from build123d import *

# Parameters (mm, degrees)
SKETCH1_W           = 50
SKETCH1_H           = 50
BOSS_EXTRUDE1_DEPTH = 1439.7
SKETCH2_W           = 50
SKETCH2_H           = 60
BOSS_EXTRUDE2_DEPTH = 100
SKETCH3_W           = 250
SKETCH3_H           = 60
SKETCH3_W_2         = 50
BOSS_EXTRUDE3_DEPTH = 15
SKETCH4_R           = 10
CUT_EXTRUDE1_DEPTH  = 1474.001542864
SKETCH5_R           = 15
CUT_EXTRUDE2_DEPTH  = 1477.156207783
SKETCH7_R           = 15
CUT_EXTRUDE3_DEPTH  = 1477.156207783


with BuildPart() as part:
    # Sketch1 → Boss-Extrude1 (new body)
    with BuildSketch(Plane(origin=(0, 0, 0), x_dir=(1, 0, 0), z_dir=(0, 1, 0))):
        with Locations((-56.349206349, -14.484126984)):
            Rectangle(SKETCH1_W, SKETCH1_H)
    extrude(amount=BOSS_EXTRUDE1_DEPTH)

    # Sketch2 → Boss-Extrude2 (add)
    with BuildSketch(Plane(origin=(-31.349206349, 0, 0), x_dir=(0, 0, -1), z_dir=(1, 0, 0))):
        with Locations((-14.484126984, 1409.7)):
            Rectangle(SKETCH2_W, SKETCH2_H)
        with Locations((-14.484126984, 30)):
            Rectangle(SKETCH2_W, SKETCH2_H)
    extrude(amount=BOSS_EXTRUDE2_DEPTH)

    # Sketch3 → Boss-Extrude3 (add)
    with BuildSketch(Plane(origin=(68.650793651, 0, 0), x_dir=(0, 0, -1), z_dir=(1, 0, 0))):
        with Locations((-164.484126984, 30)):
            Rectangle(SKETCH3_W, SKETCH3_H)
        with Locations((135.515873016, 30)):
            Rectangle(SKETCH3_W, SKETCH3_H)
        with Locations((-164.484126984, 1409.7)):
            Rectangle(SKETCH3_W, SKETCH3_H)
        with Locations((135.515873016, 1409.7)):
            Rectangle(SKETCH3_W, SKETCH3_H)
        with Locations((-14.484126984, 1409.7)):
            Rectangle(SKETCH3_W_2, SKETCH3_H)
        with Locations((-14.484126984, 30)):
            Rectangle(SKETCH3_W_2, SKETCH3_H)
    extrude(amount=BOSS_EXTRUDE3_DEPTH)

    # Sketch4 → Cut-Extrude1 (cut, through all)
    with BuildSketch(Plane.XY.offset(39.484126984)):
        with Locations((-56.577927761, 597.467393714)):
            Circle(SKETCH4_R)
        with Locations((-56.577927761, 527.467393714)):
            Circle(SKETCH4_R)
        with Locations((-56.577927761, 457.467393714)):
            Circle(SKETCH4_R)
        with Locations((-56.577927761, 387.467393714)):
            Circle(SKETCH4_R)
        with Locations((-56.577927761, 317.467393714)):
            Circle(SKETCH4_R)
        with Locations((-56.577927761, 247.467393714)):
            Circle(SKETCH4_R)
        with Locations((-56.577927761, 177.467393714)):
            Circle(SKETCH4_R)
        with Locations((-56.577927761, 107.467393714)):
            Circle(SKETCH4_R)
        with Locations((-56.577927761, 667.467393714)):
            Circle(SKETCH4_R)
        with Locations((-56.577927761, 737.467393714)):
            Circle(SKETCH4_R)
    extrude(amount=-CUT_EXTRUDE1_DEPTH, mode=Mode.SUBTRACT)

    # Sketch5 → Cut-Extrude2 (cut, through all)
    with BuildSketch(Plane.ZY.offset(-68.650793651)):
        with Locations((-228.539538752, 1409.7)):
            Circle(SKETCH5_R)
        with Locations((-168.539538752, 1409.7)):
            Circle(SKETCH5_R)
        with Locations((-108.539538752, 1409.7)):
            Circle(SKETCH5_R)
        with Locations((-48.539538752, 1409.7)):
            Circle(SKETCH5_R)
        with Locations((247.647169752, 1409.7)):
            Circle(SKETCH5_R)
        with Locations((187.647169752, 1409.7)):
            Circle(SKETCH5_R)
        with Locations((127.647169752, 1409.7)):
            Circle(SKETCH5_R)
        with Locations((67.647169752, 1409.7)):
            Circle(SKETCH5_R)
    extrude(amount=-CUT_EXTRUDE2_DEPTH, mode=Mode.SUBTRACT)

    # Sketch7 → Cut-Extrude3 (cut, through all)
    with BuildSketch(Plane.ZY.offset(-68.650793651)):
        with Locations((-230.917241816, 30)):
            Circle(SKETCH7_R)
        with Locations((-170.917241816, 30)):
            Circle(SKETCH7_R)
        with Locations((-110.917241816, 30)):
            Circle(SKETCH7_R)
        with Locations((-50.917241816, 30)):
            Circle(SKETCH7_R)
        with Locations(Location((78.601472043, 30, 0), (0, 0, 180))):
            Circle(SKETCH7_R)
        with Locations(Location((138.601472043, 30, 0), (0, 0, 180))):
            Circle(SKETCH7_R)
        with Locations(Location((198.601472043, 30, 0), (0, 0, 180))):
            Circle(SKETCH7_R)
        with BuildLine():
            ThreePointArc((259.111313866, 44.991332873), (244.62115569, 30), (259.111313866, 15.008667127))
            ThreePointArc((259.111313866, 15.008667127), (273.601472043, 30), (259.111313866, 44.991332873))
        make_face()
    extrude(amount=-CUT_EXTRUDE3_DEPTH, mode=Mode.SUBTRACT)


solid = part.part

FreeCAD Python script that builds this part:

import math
import FreeCAD as App
import Part
import Sketcher
from FreeCAD import Vector

doc = App.newDocument("Part")
params = doc.addObject("Spreadsheet::Sheet", "Params")
for row, (alias, value) in enumerate([
    ("sketch1_width", "50 mm"),
    ("pad1_length", "1439.7 mm"),
    ("sketch2_width", "60 mm"),
    ("sketch2_height", "50 mm"),
    ("pad2_length", "100 mm"),
    ("sketch3_width", "60 mm"),
    ("sketch3_height", "550 mm"),
    ("pad3_length", "15 mm"),
    ("sketch4_diameter", "20 mm"),
    ("sketch5_diameter", "30 mm"),
    ("sketch6_diameter", "30 mm"),
], start=1):
    params.set(f"A{row}", alias)
    params.set(f"B{row}", "=" + value)
    params.setAlias(f"B{row}", alias)

body = doc.addObject("PartDesign::Body", "Body")

# Sketch on XZ plane
sketch1 = body.newObject("Sketcher::SketchObject", "Sketch")
sketch1.AttachmentSupport = (doc.getObject("XZ_Plane"), [""])
sketch1.MapMode = "FlatFace"
sketch1.addGeometry([
    Part.LineSegment(Vector(-81.349206, -10.515873, 0), Vector(-81.349206, 39.484127, 0)),
    Part.LineSegment(Vector(-81.349206, 39.484127, 0), Vector(-31.349206, 39.484127, 0)),
    Part.LineSegment(Vector(-31.349206, 39.484127, 0), Vector(-31.349206, -10.515873, 0)),
    Part.LineSegment(Vector(-31.349206, -10.515873, 0), Vector(-81.349206, -10.515873, 0)),
], False)
sketch1.addConstraint([
    Sketcher.Constraint("Coincident", 0, 2, 1, 1),
    Sketcher.Constraint("Coincident", 1, 2, 2, 1),
    Sketcher.Constraint("Coincident", 2, 2, 3, 1),
    Sketcher.Constraint("Coincident", 3, 2, 0, 1),
    Sketcher.Constraint("Vertical", 0),
    Sketcher.Constraint("Horizontal", 1),
    Sketcher.Constraint("Vertical", 2),
    Sketcher.Constraint("Horizontal", 3),
    Sketcher.Constraint("Equal", 3, 0),
    Sketcher.Constraint("DistanceX", 1, 1, 1, 2, 50.0),
    Sketcher.Constraint("DistanceX", 0, 2, -1, 1, 81.349206),
    Sketcher.Constraint("DistanceY", -1, 1, 0, 2, 39.484127),
])
sketch1.setExpression("Constraints[9]", "Params.sketch1_width")
pad1 = body.newObject("PartDesign::Pad", "Pad")
pad1.Profile = sketch1
pad1.setExpression("Length", "Params.pad1_length")
pad1.Reversed = True

# Sketch on YZ plane
sketch2 = body.newObject("Sketcher::SketchObject", "Sketch001")
sketch2.AttachmentSupport = (doc.getObject("YZ_Plane"), [""])
sketch2.MapMode = "FlatFace"
sketch2.AttachmentOffset = App.Placement(Vector(0, 0, -31.349206), App.Rotation())
sketch2.addGeometry([
    Part.LineSegment(Vector(1439.7, 39.484127, 0), Vector(1379.7, 39.484127, 0)),  # 0
    Part.LineSegment(Vector(1379.7, 39.484127, 0), Vector(1379.7, -10.515873, 0)),  # 1
    Part.LineSegment(Vector(1379.7, -10.515873, 0), Vector(1439.7, -10.515873, 0)),  # 2
    Part.LineSegment(Vector(1439.7, -10.515873, 0), Vector(1439.7, 39.484127, 0)),  # 3
    Part.LineSegment(Vector(60, 39.484127, 0), Vector(0, 39.484127, 0)),  # 4
    Part.LineSegment(Vector(0, 39.484127, 0), Vector(0, -10.515873, 0)),  # 5
    Part.LineSegment(Vector(0, -10.515873, 0), Vector(60, -10.515873, 0)),  # 6
    Part.LineSegment(Vector(60, -10.515873, 0), Vector(60, 39.484127, 0)),  # 7
], False)
sketch2.addConstraint([
    Sketcher.Constraint("Coincident", 0, 2, 1, 1),
    Sketcher.Constraint("Coincident", 1, 2, 2, 1),
    Sketcher.Constraint("Coincident", 2, 2, 3, 1),
    Sketcher.Constraint("Coincident", 3, 2, 0, 1),
    Sketcher.Constraint("Coincident", 4, 2, 5, 1),
    Sketcher.Constraint("Coincident", 5, 2, 6, 1),
    Sketcher.Constraint("Coincident", 6, 2, 7, 1),
    Sketcher.Constraint("Coincident", 7, 2, 4, 1),
    Sketcher.Constraint("Horizontal", 0),
    Sketcher.Constraint("Vertical", 1),
    Sketcher.Constraint("Horizontal", 2),
    Sketcher.Constraint("Vertical", 3),
    Sketcher.Constraint("Horizontal", 4),
    Sketcher.Constraint("Vertical", 5),
    Sketcher.Constraint("Horizontal", 6),
    Sketcher.Constraint("Vertical", 7),
    Sketcher.Constraint("PointOnObject", 4, 2, -2),
    Sketcher.Constraint("Horizontal", 3, 2, 4, 2),
    Sketcher.Constraint("Horizontal", 2, 2, 5, 2),
    Sketcher.Constraint("Equal", 2, 4),
    Sketcher.Constraint("DistanceX", 0, 2, 0, 1, 60.0),
    Sketcher.Constraint("DistanceY", 1, 2, 1, 1, 50.0),
    Sketcher.Constraint("DistanceX", -1, 1, 0, 2, 1379.7),
    Sketcher.Constraint("DistanceY", -1, 1, 0, 2, 39.484127),
])
sketch2.setExpression("Constraints[20]", "Params.sketch2_width")
sketch2.setExpression("Constraints[21]", "Params.sketch2_height")
pad2 = body.newObject("PartDesign::Pad", "Pad001")
pad2.Profile = sketch2
pad2.setExpression("Length", "Params.pad2_length")

# Sketch on YZ plane
sketch3 = body.newObject("Sketcher::SketchObject", "Sketch002")
sketch3.AttachmentSupport = (doc.getObject("YZ_Plane"), [""])
sketch3.MapMode = "FlatFace"
sketch3.AttachmentOffset = App.Placement(Vector(0, 0, 68.650794), App.Rotation())
sketch3.addGeometry([
    Part.LineSegment(Vector(60, 289.484127, 0), Vector(0, 289.484127, 0)),  # 0
    Part.LineSegment(Vector(0, 289.484127, 0), Vector(0, -260.515873, 0)),  # 1
    Part.LineSegment(Vector(0, -260.515873, 0), Vector(60, -260.515873, 0)),  # 2
    Part.LineSegment(Vector(60, -260.515873, 0), Vector(60, 289.484127, 0)),  # 3
    Part.LineSegment(Vector(1439.7, 289.484127, 0), Vector(1379.7, 289.484127, 0)),  # 4
    Part.LineSegment(Vector(1379.7, 289.484127, 0), Vector(1379.7, -260.515873, 0)),  # 5
    Part.LineSegment(Vector(1379.7, -260.515873, 0), Vector(1439.7, -260.515873, 0)),  # 6
    Part.LineSegment(Vector(1439.7, -260.515873, 0), Vector(1439.7, 289.484127, 0)),  # 7
], False)
sketch3.addConstraint([
    Sketcher.Constraint("Coincident", 0, 2, 1, 1),
    Sketcher.Constraint("Coincident", 1, 2, 2, 1),
    Sketcher.Constraint("Coincident", 2, 2, 3, 1),
    Sketcher.Constraint("Coincident", 3, 2, 0, 1),
    Sketcher.Constraint("Coincident", 4, 2, 5, 1),
    Sketcher.Constraint("Coincident", 5, 2, 6, 1),
    Sketcher.Constraint("Coincident", 6, 2, 7, 1),
    Sketcher.Constraint("Coincident", 7, 2, 4, 1),
    Sketcher.Constraint("Horizontal", 0),
    Sketcher.Constraint("Vertical", 1),
    Sketcher.Constraint("Horizontal", 2),
    Sketcher.Constraint("Vertical", 3),
    Sketcher.Constraint("Horizontal", 4),
    Sketcher.Constraint("Vertical", 5),
    Sketcher.Constraint("Horizontal", 6),
    Sketcher.Constraint("Vertical", 7),
    Sketcher.Constraint("PointOnObject", 0, 2, -2),
    Sketcher.Constraint("Horizontal", 3, 2, 4, 2),
    Sketcher.Constraint("Horizontal", 2, 2, 5, 2),
    Sketcher.Constraint("Equal", 2, 4),
    Sketcher.Constraint("DistanceX", 0, 2, 0, 1, 60.0),
    Sketcher.Constraint("DistanceY", 1, 2, 1, 1, 550.0),
    Sketcher.Constraint("DistanceX", -1, 1, 4, 2, 1379.7),
    Sketcher.Constraint("DistanceY", -1, 1, 0, 2, 289.484127),
])
sketch3.setExpression("Constraints[20]", "Params.sketch3_width")
sketch3.setExpression("Constraints[21]", "Params.sketch3_height")
pad3 = body.newObject("PartDesign::Pad", "Pad002")
pad3.Profile = sketch3
pad3.setExpression("Length", "Params.pad3_length")

# Sketch on XY plane
sketch4 = body.newObject("Sketcher::SketchObject", "Sketch003")
sketch4.AttachmentSupport = (doc.getObject("XY_Plane"), [""])
sketch4.MapMode = "FlatFace"
sketch4.AttachmentOffset = App.Placement(Vector(0, 0, 39.484127), App.Rotation())
sketch4.addGeometry([
    Part.Circle(Vector(-56.577928, 597.467394, 0), Vector(0, 0, 1), 10),  # 0
    Part.Circle(Vector(-56.577928, 527.467394, 0), Vector(0, 0, 1), 10),  # 1
    Part.Circle(Vector(-56.577928, 457.467394, 0), Vector(0, 0, 1), 10),  # 2
    Part.Circle(Vector(-56.577928, 387.467394, 0), Vector(0, 0, 1), 10),  # 3
    Part.Circle(Vector(-56.577928, 317.467394, 0), Vector(0, 0, 1), 10),  # 4
    Part.Circle(Vector(-56.577928, 247.467394, 0), Vector(0, 0, 1), 10),  # 5
    Part.Circle(Vector(-56.577928, 177.467394, 0), Vector(0, 0, 1), 10),  # 6
    Part.Circle(Vector(-56.577928, 107.467394, 0), Vector(0, 0, 1), 10),  # 7
    Part.Circle(Vector(-56.577928, 667.467394, 0), Vector(0, 0, 1), 10),  # 8
    Part.Circle(Vector(-56.577928, 737.467394, 0), Vector(0, 0, 1), 10),  # 9
], False)
sketch4.addConstraint([
    Sketcher.Constraint("Equal", 0, 1),
    Sketcher.Constraint("Equal", 1, 2),
    Sketcher.Constraint("Equal", 2, 3),
    Sketcher.Constraint("Equal", 3, 4),
    Sketcher.Constraint("Equal", 4, 5),
    Sketcher.Constraint("Equal", 5, 6),
    Sketcher.Constraint("Equal", 6, 7),
    Sketcher.Constraint("Equal", 7, 8),
    Sketcher.Constraint("Equal", 8, 9),
    Sketcher.Constraint("Vertical", 0, 3, 1, 3),
    Sketcher.Constraint("Vertical", 1, 3, 2, 3),
    Sketcher.Constraint("Vertical", 2, 3, 3, 3),
    Sketcher.Constraint("Vertical", 3, 3, 4, 3),
    Sketcher.Constraint("Vertical", 4, 3, 5, 3),
    Sketcher.Constraint("Vertical", 5, 3, 6, 3),
    Sketcher.Constraint("Vertical", 6, 3, 7, 3),
    Sketcher.Constraint("Vertical", 7, 3, 8, 3),
    Sketcher.Constraint("Vertical", 8, 3, 9, 3),
    Sketcher.Constraint("Diameter", 0, 20.0),
    Sketcher.Constraint("DistanceY", 1, 3, 0, 3, 70.0),
    Sketcher.Constraint("DistanceY", 2, 3, 1, 3, 70.0),
    Sketcher.Constraint("DistanceY", 3, 3, 2, 3, 70.0),
    Sketcher.Constraint("DistanceY", 4, 3, 3, 3, 70.0),
    Sketcher.Constraint("DistanceY", 5, 3, 4, 3, 70.0),
    Sketcher.Constraint("DistanceY", 6, 3, 5, 3, 70.0),
    Sketcher.Constraint("DistanceY", 7, 3, 6, 3, 70.0),
    Sketcher.Constraint("DistanceY", 0, 3, 8, 3, 70.0),
    Sketcher.Constraint("DistanceY", 8, 3, 9, 3, 70.0),
    Sketcher.Constraint("DistanceX", 0, 3, -1, 1, 56.577928),
    Sketcher.Constraint("DistanceY", -1, 1, 0, 3, 597.467394),
])
sketch4.setExpression("Constraints[18]", "Params.sketch4_diameter")
pocket1 = body.newObject("PartDesign::Pocket", "Pocket")
pocket1.Profile = sketch4
pocket1.Type = "ThroughAll"

# Sketch on YZ plane
sketch5 = body.newObject("Sketcher::SketchObject", "Sketch004")
sketch5.AttachmentSupport = (doc.getObject("YZ_Plane"), [""])
sketch5.MapMode = "FlatFace"
sketch5.AttachmentOffset = App.Placement(Vector(0, 0, 68.650794), App.Rotation())
sketch5.addGeometry([
    Part.Circle(Vector(1409.7, -228.539539, 0), Vector(0, 0, 1), 15),  # 0
    Part.Circle(Vector(1409.7, -168.539539, 0), Vector(0, 0, 1), 15),  # 1
    Part.Circle(Vector(1409.7, -108.539539, 0), Vector(0, 0, 1), 15),  # 2
    Part.Circle(Vector(1409.7, -48.539539, 0), Vector(0, 0, 1), 15),  # 3
    Part.Circle(Vector(1409.7, 247.64717, 0), Vector(0, 0, 1), 15),  # 4
    Part.Circle(Vector(1409.7, 187.64717, 0), Vector(0, 0, 1), 15),  # 5
    Part.Circle(Vector(1409.7, 127.64717, 0), Vector(0, 0, 1), 15),  # 6
    Part.Circle(Vector(1409.7, 67.64717, 0), Vector(0, 0, 1), 15),  # 7
], False)
sketch5.addConstraint([
    Sketcher.Constraint("Equal", 0, 1),
    Sketcher.Constraint("Equal", 1, 2),
    Sketcher.Constraint("Equal", 2, 3),
    Sketcher.Constraint("Equal", 3, 4),
    Sketcher.Constraint("Equal", 4, 5),
    Sketcher.Constraint("Equal", 5, 6),
    Sketcher.Constraint("Equal", 6, 7),
    Sketcher.Constraint("Vertical", 0, 3, 1, 3),
    Sketcher.Constraint("Vertical", 1, 3, 2, 3),
    Sketcher.Constraint("Vertical", 2, 3, 3, 3),
    Sketcher.Constraint("Vertical", 3, 3, 4, 3),
    Sketcher.Constraint("Vertical", 4, 3, 5, 3),
    Sketcher.Constraint("Vertical", 5, 3, 6, 3),
    Sketcher.Constraint("Vertical", 6, 3, 7, 3),
    Sketcher.Constraint("Diameter", 0, 30.0),
    Sketcher.Constraint("DistanceY", 0, 3, 1, 3, 60.0),
    Sketcher.Constraint("DistanceY", 1, 3, 2, 3, 60.0),
    Sketcher.Constraint("DistanceY", 2, 3, 3, 3, 60.0),
    Sketcher.Constraint("DistanceY", 5, 3, 4, 3, 60.0),
    Sketcher.Constraint("DistanceY", 6, 3, 5, 3, 60.0),
    Sketcher.Constraint("DistanceY", 7, 3, 6, 3, 60.0),
    Sketcher.Constraint("DistanceX", -1, 1, 0, 3, 1409.7),
    Sketcher.Constraint("DistanceY", 0, 3, -1, 1, 228.539539),
    Sketcher.Constraint("DistanceY", -1, 1, 4, 3, 247.64717),
])
sketch5.setExpression("Constraints[14]", "Params.sketch5_diameter")
pocket2 = body.newObject("PartDesign::Pocket", "Pocket001")
pocket2.Profile = sketch5
pocket2.Type = "ThroughAll"
pocket2.Reversed = True

# Sketch on YZ plane
sketch6 = body.newObject("Sketcher::SketchObject", "Sketch005")
sketch6.AttachmentSupport = (doc.getObject("YZ_Plane"), [""])
sketch6.MapMode = "FlatFace"
sketch6.AttachmentOffset = App.Placement(Vector(0, 0, 68.650794), App.Rotation())
sketch6.addGeometry([
    Part.Circle(Vector(30, -230.917242, 0), Vector(0, 0, 1), 15),  # 0
    Part.Circle(Vector(30, -170.917242, 0), Vector(0, 0, 1), 15),  # 1
    Part.Circle(Vector(30, -110.917242, 0), Vector(0, 0, 1), 15),  # 2
    Part.Circle(Vector(30, -50.917242, 0), Vector(0, 0, 1), 15),  # 3
    Part.Circle(Vector(30, 78.601472, 0), Vector(0, 0, 1), 15),  # 4
    Part.Circle(Vector(30, 138.601472, 0), Vector(0, 0, 1), 15),  # 5
    Part.Circle(Vector(30, 198.601472, 0), Vector(0, 0, 1), 15),  # 6
    Part.ArcOfCircle(Part.Circle(Vector(30, 259.621156, 0), Vector(0, 0, 1), 15), math.radians(-178.052173), math.radians(-1.947827)),  # 7
    Part.ArcOfCircle(Part.Circle(Vector(30, 258.601472, 0), Vector(0, 0, 1), 15), math.radians(1.947827), math.radians(178.052173)),  # 8
], False)
sketch6.addConstraint([
    Sketcher.Constraint("Coincident", 7, 1, 8, 2),
    Sketcher.Constraint("Coincident", 8, 1, 7, 2),
    Sketcher.Constraint("Equal", 0, 1),
    Sketcher.Constraint("Equal", 1, 2),
    Sketcher.Constraint("Equal", 2, 3),
    Sketcher.Constraint("Equal", 3, 4),
    Sketcher.Constraint("Equal", 4, 5),
    Sketcher.Constraint("Equal", 5, 6),
    Sketcher.Constraint("Equal", 6, 7),
    Sketcher.Constraint("Equal", 7, 8),
    Sketcher.Constraint("Horizontal", 7, 1, 8, 1),
    Sketcher.Constraint("Vertical", 0, 3, 1, 3),
    Sketcher.Constraint("Vertical", 1, 3, 2, 3),
    Sketcher.Constraint("Vertical", 2, 3, 3, 3),
    Sketcher.Constraint("Vertical", 3, 3, 4, 3),
    Sketcher.Constraint("Vertical", 4, 3, 5, 3),
    Sketcher.Constraint("Vertical", 5, 3, 6, 3),
    Sketcher.Constraint("Vertical", 6, 3, 7, 3),
    Sketcher.Constraint("Diameter", 0, 30.0),
    Sketcher.Constraint("DistanceX", -1, 1, 0, 3, 30.0),
    Sketcher.Constraint("DistanceY", 0, 3, 1, 3, 60.0),
    Sketcher.Constraint("DistanceY", 1, 3, 2, 3, 60.0),
    Sketcher.Constraint("DistanceY", 2, 3, 3, 3, 60.0),
    Sketcher.Constraint("DistanceY", 4, 3, 5, 3, 60.0),
    Sketcher.Constraint("DistanceY", 5, 3, 6, 3, 60.0),
    Sketcher.Constraint("DistanceY", 6, 3, 8, 3, 60.0),
    Sketcher.Constraint("DistanceY", 0, 3, -1, 1, 230.917242),
    Sketcher.Constraint("DistanceY", 8, 3, 7, 1, 0.509842),
    Sketcher.Constraint("DistanceY", -1, 1, 4, 3, 78.601472),
])
sketch6.setExpression("Constraints[18]", "Params.sketch6_diameter")
pocket3 = body.newObject("PartDesign::Pocket", "Pocket002")
pocket3.Profile = sketch6
pocket3.Type = "ThroughAll"
pocket3.Reversed = True

doc.recompute()
